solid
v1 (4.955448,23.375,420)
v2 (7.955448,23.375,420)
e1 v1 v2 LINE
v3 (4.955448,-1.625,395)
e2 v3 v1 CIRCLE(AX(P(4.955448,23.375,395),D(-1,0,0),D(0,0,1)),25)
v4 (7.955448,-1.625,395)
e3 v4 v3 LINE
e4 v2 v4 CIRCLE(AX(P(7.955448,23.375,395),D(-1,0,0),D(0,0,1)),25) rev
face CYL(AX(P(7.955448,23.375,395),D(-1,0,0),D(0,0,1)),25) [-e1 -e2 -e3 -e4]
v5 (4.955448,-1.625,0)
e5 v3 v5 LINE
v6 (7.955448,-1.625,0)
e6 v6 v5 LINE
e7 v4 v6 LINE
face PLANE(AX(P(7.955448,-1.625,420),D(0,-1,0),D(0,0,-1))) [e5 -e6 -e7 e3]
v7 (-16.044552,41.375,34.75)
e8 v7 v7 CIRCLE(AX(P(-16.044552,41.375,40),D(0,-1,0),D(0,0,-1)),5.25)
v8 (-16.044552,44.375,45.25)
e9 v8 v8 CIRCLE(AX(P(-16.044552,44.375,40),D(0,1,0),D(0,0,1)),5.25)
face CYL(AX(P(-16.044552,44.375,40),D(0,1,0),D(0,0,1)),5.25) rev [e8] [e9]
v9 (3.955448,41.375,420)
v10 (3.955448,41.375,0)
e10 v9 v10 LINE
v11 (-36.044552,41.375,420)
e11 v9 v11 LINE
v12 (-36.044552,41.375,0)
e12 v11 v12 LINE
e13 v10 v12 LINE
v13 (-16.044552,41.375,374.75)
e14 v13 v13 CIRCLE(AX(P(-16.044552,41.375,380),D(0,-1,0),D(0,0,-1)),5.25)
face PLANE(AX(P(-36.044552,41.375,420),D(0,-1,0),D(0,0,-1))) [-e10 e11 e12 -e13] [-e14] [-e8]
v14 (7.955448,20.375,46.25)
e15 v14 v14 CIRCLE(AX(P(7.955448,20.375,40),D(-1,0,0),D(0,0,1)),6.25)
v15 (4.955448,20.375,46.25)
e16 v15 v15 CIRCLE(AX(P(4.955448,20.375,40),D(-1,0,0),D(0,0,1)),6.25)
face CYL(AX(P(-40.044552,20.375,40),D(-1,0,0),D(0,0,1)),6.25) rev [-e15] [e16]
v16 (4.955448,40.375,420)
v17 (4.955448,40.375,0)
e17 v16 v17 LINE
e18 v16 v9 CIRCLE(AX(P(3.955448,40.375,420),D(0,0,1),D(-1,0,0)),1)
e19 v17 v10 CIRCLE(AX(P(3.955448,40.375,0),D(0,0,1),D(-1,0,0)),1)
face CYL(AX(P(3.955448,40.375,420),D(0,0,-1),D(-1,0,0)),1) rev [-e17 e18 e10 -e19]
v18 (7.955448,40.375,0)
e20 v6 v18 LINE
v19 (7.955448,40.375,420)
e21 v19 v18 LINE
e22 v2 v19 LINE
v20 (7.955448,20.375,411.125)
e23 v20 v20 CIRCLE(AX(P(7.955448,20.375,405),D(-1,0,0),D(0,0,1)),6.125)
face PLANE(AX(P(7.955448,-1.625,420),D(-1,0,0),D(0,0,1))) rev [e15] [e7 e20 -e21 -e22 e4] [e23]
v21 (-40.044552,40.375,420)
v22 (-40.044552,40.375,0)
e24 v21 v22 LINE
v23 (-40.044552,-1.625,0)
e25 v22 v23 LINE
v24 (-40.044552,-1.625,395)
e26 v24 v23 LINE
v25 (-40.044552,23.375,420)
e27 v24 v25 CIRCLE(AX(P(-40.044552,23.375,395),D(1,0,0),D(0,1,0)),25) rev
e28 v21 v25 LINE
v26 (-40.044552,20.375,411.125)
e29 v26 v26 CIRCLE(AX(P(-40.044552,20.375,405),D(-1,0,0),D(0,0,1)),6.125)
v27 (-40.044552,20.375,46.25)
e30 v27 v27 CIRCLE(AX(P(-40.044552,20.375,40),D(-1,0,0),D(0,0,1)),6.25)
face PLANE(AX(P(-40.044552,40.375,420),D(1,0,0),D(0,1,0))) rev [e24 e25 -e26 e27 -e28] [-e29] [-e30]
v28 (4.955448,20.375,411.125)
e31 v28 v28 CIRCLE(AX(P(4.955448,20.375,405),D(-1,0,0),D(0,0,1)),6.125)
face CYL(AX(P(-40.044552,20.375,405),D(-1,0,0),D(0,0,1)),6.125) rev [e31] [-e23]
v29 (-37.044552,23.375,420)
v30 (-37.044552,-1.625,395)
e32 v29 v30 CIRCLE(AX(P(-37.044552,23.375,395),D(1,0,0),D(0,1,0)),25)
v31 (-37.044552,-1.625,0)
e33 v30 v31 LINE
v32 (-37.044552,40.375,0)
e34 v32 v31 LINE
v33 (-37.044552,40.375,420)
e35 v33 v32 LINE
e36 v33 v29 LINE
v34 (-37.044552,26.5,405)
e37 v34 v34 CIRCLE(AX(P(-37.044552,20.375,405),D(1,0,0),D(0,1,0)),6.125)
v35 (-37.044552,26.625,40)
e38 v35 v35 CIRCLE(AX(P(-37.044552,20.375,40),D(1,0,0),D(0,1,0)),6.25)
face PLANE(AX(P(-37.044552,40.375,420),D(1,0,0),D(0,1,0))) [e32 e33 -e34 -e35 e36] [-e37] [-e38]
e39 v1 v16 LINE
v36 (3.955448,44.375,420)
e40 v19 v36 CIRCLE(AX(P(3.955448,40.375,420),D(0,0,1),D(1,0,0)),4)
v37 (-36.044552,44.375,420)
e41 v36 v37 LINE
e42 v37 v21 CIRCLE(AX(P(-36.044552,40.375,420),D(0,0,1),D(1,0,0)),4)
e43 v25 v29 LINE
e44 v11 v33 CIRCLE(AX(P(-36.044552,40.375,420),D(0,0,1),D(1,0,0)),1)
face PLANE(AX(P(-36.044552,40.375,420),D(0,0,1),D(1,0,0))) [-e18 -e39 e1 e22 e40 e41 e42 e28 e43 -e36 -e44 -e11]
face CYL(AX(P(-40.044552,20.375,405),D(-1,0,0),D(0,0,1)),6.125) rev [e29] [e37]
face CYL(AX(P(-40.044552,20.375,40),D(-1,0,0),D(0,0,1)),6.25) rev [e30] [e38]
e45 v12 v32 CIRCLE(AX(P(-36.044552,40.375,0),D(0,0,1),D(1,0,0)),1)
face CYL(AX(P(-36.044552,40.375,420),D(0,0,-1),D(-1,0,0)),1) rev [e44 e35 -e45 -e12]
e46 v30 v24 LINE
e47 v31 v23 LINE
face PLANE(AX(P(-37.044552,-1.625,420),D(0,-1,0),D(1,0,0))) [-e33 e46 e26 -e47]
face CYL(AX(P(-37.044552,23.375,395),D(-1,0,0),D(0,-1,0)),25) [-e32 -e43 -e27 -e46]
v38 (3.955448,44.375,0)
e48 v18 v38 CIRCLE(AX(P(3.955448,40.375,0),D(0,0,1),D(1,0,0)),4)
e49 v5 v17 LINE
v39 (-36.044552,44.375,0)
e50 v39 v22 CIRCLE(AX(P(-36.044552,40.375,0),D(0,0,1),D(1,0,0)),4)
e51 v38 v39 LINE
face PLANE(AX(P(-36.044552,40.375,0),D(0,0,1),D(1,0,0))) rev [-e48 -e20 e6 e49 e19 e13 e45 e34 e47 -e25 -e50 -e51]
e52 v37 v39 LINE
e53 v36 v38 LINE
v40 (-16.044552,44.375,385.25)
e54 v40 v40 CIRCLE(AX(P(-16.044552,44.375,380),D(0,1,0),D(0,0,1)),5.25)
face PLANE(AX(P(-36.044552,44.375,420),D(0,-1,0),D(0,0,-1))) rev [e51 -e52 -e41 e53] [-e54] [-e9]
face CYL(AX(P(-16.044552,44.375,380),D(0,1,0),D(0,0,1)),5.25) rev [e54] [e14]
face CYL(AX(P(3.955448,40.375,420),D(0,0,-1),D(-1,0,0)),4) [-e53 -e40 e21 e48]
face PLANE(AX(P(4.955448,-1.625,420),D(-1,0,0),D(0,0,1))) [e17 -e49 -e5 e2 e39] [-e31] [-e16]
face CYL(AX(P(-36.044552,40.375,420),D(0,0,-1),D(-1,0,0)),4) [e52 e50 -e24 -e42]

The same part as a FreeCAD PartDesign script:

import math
import FreeCAD as App
import Part
import Sketcher
from FreeCAD import Vector
Q = App.Units.Quantity


def edges_at(feature, points):
    """Names of the edges that pass closest to the given points."""
    edges = feature.Shape.Edges
    near = lambda p: min(range(len(edges)), key=lambda i: edges[i].distToShape(Part.Vertex(*p))[0])
    return sorted({f"Edge{near(p) + 1}" for p in points})

doc = App.newDocument("Part")
body = doc.addObject("PartDesign::Body", "Body")

# Sketch on XY plane
sketch1 = doc.addObject("Sketcher::SketchObject", "Sketch")
body.addObject(sketch1)
sketch1.AttachmentSupport = (doc.XY_Plane, [""])
sketch1.MapMode = "FlatFace"
sketch1.addGeometry([
    Part.LineSegment(Vector(-37, -1.6, 0), Vector(-37, 40.4, 0)),  # 0
    Part.ArcOfCircle(Part.Circle(Vector(-36, 40.4, 0), Vector(0, 0, 1), 1), math.radians(90), math.radians(180)),  # 1
    Part.LineSegment(Vector(-36, 41.4, 0), Vector(4, 41.4, 0)),  # 2
    Part.ArcOfCircle(Part.Circle(Vector(4, 40.4, 0), Vector(0, 0, 1), 1), math.radians(0), math.radians(90)),  # 3
    Part.LineSegment(Vector(5, 40.4, 0), Vector(5, -1.6, 0)),  # 4
    Part.LineSegment(Vector(5, -1.6, 0), Vector(8, -1.6, 0)),  # 5
    Part.LineSegment(Vector(8, -1.6, 0), Vector(8, 40.4, 0)),  # 6
    Part.ArcOfCircle(Part.Circle(Vector(4, 40.4, 0), Vector(0, 0, 1), 4), math.radians(0), math.radians(90)),  # 7
    Part.LineSegment(Vector(4, 44.4, 0), Vector(-36, 44.4, 0)),  # 8
    Part.ArcOfCircle(Part.Circle(Vector(-36, 40.4, 0), Vector(0, 0, 1), 4), math.radians(90), math.radians(180)),  # 9
    Part.LineSegment(Vector(-40, 40.4, 0), Vector(-40, -1.6, 0)),  # 10
    Part.LineSegment(Vector(-40, -1.6, 0), Vector(-37, -1.6, 0)),  # 11
], False)
sketch1.addConstraint([
    Sketcher.Constraint("Tangent", 0, 2, 1, 2),
    Sketcher.Constraint("Tangent", 1, 1, 2, 1),
    Sketcher.Constraint("Tangent", 2, 2, 3, 2),
    Sketcher.Constraint("Tangent", 3, 1, 4, 1),
    Sketcher.Constraint("Coincident", 4, 2, 5, 1),
    Sketcher.Constraint("Coincident", 5, 2, 6, 1),
    Sketcher.Constraint("Tangent", 6, 2, 7, 1),
    Sketcher.Constraint("Tangent", 7, 2, 8, 1),
    Sketcher.Constraint("Tangent", 8, 2, 9, 1),
    Sketcher.Constraint("Tangent", 9, 2, 10, 1),
    Sketcher.Constraint("Coincident", 10, 2, 11, 1),
    Sketcher.Constraint("Coincident", 11, 2, 0, 1),
    Sketcher.Constraint("Vertical", 0),
    Sketcher.Constraint("Horizontal", 2),
    Sketcher.Constraint("Vertical", 4),
    Sketcher.Constraint("Horizontal", 5),
    Sketcher.Constraint("Vertical", 6),
    Sketcher.Constraint("Horizontal", 8),
    Sketcher.Constraint("Vertical", 10),
    Sketcher.Constraint("Horizontal", 11),
    Sketcher.Constraint("Coincident", 7, 3, 3, 3),
    Sketcher.Constraint("Coincident", 9, 3, 1, 3),
    Sketcher.Constraint("Equal", 1, 3),
    Sketcher.Constraint("Horizontal", 5, 2, 10, 2),
    Sketcher.Constraint("Radius", 1, Q("1 mm")),
    Sketcher.Constraint("Radius", 7, Q("4 mm")),
    Sketcher.Constraint("DistanceX", 2, 1, 2, 2, Q("40 mm")),
    Sketcher.Constraint("DistanceY", 0, 1, 0, 2, Q("42 mm")),
    Sketcher.Constraint("DistanceY", -1, 1, 1, 3, Q("40.375 mm")),
    Sketcher.Constraint("DistanceX", 1, 3, -1, 1, Q("36.044552 mm")),
])
pad1 = doc.addObject("PartDesign::Pad", "Pad")
body.addObject(pad1)
pad1.Profile = sketch1
pad1.Length = 420

# Sketch on YZ plane
sketch2 = doc.addObject("Sketcher::SketchObject", "Sketch001")
body.addObject(sketch2)
sketch2.AttachmentSupport = (doc.YZ_Plane, [""])
sketch2.MapMode = "FlatFace"
sketch2.AttachmentOffset = App.Placement(Vector(0, 0, -40.044552), App.Rotation())
sketch2.addGeometry(Part.Circle(Vector(20, 40, 0), Vector(0, 0, 1), 6), False)
sketch2.addConstraint([
    Sketcher.Constraint("Diameter", 0, Q("12.5 mm")),
    Sketcher.Constraint("DistanceY", -1, 1, 0, 3, Q("40 mm")),
    Sketcher.Constraint("DistanceX", -1, 1, 0, 3, Q("20.375 mm")),
])
doc.recompute()
hole = doc.addObject("PartDesign::Hole", "Hole")
body.addObject(hole)
hole.Profile = sketch2
hole.ThreadType = "None"
hole.Diameter = 12.5
hole.DepthType = "ThroughAll"
hole.Reversed = True

# Sketch on YZ plane
sketch3 = doc.addObject("Sketcher::SketchObject", "Sketch002")
body.addObject(sketch3)
sketch3.AttachmentSupport = (doc.YZ_Plane, [""])
sketch3.MapMode = "FlatFace"
sketch3.AttachmentOffset = App.Placement(Vector(0, 0, -40.044552), App.Rotation())
sketch3.addGeometry(Part.Circle(Vector(20, 405, 0), Vector(0, 0, 1), 6), False)
sketch3.addConstraint([
    Sketcher.Constraint("Diameter", 0, Q("12.25 mm")),
    Sketcher.Constraint("DistanceY", -1, 1, 0, 3, Q("405 mm")),
    Sketcher.Constraint("DistanceX", -1, 1, 0, 3, Q("20.375 mm")),
])
doc.recompute()
hole2 = doc.addObject("PartDesign::Hole", "Hole001")
body.addObject(hole2)
hole2.Profile = sketch3
hole2.ThreadType = "None"
hole2.Diameter = 12.25
hole2.DepthType = "ThroughAll"
hole2.Reversed = True

# Sketch on XZ plane
sketch4 = doc.addObject("Sketcher::SketchObject", "Sketch003")
body.addObject(sketch4)
sketch4.AttachmentSupport = (doc.XZ_Plane, [""])
sketch4.MapMode = "FlatFace"
sketch4.AttachmentOffset = App.Placement(Vector(0, 0, -44.375), App.Rotation())
sketch4.addGeometry([
    Part.Circle(Vector(-16, 380, 0), Vector(0, 0, 1), 5),
    Part.Circle(Vector(-16, 40, 0), Vector(0, 0, 1), 5),
], False)
sketch4.addConstraint([
    Sketcher.Constraint("Equal", 0, 1),
    Sketcher.Constraint("Vertical", 0, 3, 1, 3),
    Sketcher.Constraint("Diameter", 0, Q("10.5 mm")),
    Sketcher.Constraint("DistanceY", -1, 1, 0, 3, Q("380 mm")),
    Sketcher.Constraint("DistanceY", -1, 1, 1, 3, Q("40 mm")),
    Sketcher.Constraint("DistanceX", 0, 3, -1, 1, Q("16.044552 mm")),
])
doc.recompute()
hole3 = doc.addObject("PartDesign::Hole", "Hole002")
body.addObject(hole3)
hole3.Profile = sketch4
hole3.ThreadType = "None"
hole3.Diameter = 10.5
hole3.DepthType = "ThroughAll"
hole3.Reversed = True
doc.recompute()

fillet = doc.addObject("PartDesign::Fillet", "Fillet")
body.addObject(fillet)
fillet.Base = (hole3, edges_at(hole3, [(-38.545, -1.625, 420)]))
fillet.Radius = 25
doc.recompute()

fillet2 = doc.addObject("PartDesign::Fillet", "Fillet001")
body.addObject(fillet2)
fillet2.Base = (fillet, edges_at(fillet, [(6.455, -1.625, 420)]))
fillet2.Radius = 25

doc.recompute()
